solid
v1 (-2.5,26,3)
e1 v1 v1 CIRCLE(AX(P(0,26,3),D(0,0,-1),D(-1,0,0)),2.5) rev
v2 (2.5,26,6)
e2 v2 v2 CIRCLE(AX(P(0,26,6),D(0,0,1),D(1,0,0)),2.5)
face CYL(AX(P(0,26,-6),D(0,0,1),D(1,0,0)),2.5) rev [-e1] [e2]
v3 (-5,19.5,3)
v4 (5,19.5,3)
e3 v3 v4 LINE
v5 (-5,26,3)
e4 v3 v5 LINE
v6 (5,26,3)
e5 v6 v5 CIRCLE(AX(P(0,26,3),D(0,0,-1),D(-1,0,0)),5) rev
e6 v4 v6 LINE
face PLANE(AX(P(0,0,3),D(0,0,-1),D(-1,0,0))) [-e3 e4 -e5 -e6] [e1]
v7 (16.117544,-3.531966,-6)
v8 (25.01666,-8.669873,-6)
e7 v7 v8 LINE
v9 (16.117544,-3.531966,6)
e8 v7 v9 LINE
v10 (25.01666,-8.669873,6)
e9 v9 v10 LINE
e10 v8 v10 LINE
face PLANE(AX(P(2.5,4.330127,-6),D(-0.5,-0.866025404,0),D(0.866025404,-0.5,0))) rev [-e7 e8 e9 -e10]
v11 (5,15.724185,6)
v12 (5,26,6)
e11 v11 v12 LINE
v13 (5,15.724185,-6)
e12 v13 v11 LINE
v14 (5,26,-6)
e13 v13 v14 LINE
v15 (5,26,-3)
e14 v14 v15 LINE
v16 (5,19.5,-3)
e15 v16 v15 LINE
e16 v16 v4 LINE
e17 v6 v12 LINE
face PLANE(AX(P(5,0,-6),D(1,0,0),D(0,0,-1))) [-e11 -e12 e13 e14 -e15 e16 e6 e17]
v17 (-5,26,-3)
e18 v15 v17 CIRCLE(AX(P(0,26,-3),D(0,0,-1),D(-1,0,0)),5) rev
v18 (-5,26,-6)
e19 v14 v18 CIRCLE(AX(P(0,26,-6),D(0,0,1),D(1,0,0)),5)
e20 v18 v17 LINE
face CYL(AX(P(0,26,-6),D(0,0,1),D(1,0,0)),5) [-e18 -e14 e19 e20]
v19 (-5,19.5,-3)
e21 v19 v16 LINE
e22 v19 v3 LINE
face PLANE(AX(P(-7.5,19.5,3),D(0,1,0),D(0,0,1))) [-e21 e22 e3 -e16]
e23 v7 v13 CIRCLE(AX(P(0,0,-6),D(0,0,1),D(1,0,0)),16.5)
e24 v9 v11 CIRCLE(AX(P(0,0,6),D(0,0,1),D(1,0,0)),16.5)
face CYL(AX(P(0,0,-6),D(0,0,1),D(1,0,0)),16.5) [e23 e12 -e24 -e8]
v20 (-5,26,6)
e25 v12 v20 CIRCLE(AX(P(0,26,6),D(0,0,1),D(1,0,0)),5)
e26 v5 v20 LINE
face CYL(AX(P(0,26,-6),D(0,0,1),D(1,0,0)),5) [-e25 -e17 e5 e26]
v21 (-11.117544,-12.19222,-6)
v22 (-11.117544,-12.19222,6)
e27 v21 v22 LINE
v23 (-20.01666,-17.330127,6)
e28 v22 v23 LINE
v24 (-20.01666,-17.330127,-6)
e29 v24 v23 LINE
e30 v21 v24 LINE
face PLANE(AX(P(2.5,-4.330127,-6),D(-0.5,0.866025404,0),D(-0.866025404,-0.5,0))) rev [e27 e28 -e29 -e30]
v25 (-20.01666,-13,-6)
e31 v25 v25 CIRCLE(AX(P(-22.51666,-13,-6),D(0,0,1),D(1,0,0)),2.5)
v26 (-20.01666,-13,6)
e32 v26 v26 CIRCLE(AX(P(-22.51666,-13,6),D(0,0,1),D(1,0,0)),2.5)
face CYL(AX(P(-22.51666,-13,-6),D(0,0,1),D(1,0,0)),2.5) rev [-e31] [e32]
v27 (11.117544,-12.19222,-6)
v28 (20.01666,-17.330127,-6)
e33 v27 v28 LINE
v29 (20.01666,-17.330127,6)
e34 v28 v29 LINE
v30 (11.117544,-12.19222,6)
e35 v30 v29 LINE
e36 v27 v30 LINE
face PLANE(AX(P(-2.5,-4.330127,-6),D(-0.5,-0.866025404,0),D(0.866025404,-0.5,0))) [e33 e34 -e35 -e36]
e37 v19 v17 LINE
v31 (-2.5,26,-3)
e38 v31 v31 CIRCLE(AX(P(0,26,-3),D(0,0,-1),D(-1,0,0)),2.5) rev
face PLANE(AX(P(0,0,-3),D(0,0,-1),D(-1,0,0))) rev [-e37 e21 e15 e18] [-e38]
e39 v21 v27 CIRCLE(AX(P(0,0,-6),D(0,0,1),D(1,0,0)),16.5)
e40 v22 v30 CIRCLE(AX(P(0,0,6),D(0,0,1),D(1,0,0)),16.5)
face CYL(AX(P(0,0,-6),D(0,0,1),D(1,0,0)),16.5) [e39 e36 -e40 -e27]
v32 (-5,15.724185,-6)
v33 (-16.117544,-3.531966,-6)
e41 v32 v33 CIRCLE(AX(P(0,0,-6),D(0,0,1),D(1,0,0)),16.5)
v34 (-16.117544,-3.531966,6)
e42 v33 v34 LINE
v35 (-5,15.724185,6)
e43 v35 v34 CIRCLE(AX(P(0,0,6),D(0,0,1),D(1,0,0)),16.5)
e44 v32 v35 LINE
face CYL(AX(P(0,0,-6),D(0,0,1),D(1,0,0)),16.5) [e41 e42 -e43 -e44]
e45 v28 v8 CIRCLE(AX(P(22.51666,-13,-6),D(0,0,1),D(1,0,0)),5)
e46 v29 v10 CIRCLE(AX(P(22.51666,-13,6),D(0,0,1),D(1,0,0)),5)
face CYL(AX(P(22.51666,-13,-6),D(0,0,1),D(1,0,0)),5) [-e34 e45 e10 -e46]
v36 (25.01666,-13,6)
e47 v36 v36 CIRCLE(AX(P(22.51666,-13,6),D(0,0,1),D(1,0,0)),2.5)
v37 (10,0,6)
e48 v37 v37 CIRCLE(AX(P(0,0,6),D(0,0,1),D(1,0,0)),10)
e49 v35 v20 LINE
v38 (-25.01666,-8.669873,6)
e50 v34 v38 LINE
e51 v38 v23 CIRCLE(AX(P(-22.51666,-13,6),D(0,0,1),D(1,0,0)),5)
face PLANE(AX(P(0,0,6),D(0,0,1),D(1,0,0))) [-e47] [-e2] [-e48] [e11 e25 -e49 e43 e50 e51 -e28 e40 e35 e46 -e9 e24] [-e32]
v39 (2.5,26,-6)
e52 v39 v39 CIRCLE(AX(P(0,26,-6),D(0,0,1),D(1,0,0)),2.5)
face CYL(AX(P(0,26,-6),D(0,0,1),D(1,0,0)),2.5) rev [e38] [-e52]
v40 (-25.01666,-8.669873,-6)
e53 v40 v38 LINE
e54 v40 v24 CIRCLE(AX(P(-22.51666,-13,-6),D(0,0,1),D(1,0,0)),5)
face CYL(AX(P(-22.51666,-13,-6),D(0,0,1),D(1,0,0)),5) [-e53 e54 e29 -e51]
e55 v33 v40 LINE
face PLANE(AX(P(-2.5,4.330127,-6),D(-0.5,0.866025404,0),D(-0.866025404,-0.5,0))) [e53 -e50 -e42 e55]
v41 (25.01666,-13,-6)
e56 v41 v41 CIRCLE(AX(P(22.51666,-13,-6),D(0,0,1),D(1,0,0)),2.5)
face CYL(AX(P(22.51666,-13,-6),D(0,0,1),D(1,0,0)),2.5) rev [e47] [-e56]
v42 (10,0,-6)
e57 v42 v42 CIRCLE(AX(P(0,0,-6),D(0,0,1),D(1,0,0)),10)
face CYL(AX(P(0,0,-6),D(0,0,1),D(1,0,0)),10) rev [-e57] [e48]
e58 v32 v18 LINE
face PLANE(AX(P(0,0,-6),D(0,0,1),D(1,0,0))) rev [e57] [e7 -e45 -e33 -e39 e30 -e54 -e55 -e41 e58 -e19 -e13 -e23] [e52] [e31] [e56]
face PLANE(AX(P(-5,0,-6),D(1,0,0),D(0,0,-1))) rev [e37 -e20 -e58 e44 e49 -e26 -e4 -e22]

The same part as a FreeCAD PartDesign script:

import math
import FreeCAD as App
import Part
import Sketcher

V = App.Vector
Q = App.Units.Quantity

doc = App.newDocument("Part")
body = doc.addObject("PartDesign::Body", "Body")

# Sketch on XY plane
sketch1 = doc.addObject("Sketcher::SketchObject", "Sketch")
body.addObject(sketch1)
sketch1.AttachmentSupport = (doc.XY_Plane, [""])
sketch1.MapMode = "FlatFace"
sketch1.addGeometry([
    Part.ArcOfCircle(Part.Circle(V(0, 0, 0), V(0, 0, 1), 16.5), math.radians(-12.36), math.radians(0)),  # 0
    Part.ArcOfCircle(Part.Circle(V(0, 0, 0), V(0, 0, 1), 16.5), math.radians(0), math.radians(72)),  # 1
    Part.LineSegment(V(5, 15.7, 0), V(5, 26, 0)),  # 2
    Part.ArcOfCircle(Part.Circle(V(0, 26, 0), V(0, 0, 1), 5), math.radians(0), math.radians(180)),  # 3
    Part.LineSegment(V(-5, 26, 0), V(-5, 15.7, 0)),  # 4
    Part.ArcOfCircle(Part.Circle(V(0, 0, 0), V(0, 0, 1), 16.5), math.radians(108), math.radians(192)),  # 5
    Part.LineSegment(V(-16.1, -3.5, 0), V(-25, -8.7, 0)),  # 6
    Part.ArcOfCircle(Part.Circle(V(-22.5, -13, 0), V(0, 0, 1), 5), math.radians(120), math.radians(300)),  # 7
    Part.LineSegment(V(-20, -17.3, 0), V(-11.1, -12.2, 0)),  # 8
    Part.ArcOfCircle(Part.Circle(V(0, 0, 0), V(0, 0, 1), 16.5), math.radians(-132), math.radians(-48)),  # 9
    Part.LineSegment(V(11.1, -12.2, 0), V(20, -17.3, 0)),  # 10
    Part.ArcOfCircle(Part.Circle(V(22.5, -13, 0), V(0, 0, 1), 5), math.radians(-120), math.radians(60)),  # 11
    Part.LineSegment(V(25, -8.7, 0), V(16.1, -3.5, 0)),  # 12
    Part.ArcOfCircle(Part.Circle(V(0, 0, 0), V(0, 0, 1), 10), math.radians(0), math.radians(60)),  # 13
    Part.ArcOfCircle(Part.Circle(V(0, 0, 0), V(0, 0, 1), 10), math.radians(-60), math.radians(0)),  # 14
    Part.ArcOfCircle(Part.Circle(V(0, 0, 0), V(0, 0, 1), 10), math.radians(-120), math.radians(-60)),  # 15
    Part.ArcOfCircle(Part.Circle(V(0, 0, 0), V(0, 0, 1), 10), math.radians(180), math.radians(240)),  # 16
    Part.ArcOfCircle(Part.Circle(V(0, 0, 0), V(0, 0, 1), 10), math.radians(120), math.radians(180)),  # 17
    Part.ArcOfCircle(Part.Circle(V(0, 0, 0), V(0, 0, 1), 10), math.radians(60), math.radians(120)),  # 18
    Part.Circle(V(0, 26, 0), V(0, 0, 1), 2.5),  # 19
    Part.Circle(V(22.5, -13, 0), V(0, 0, 1), 2.5),  # 20
    Part.Circle(V(-22.5, -13, 0), V(0, 0, 1), 2.5),  # 21
], False)
sketch1.addConstraint([
    Sketcher.Constraint("Tangent", 0, 2, 1, 1),
    Sketcher.Constraint("Coincident", 1, 2, 2, 1),
    Sketcher.Constraint("Tangent", 2, 2, 3, 1),
    Sketcher.Constraint("Tangent", 3, 2, 4, 1),
    Sketcher.Constraint("Coincident", 4, 2, 5, 1),
    Sketcher.Constraint("Coincident", 5, 2, 6, 1),
    Sketcher.Constraint("Tangent", 6, 2, 7, 1),
    Sketcher.Constraint("Tangent", 7, 2, 8, 1),
    Sketcher.Constraint("Coincident", 8, 2, 9, 1),
    Sketcher.Constraint("Coincident", 9, 2, 10, 1),
    Sketcher.Constraint("Tangent", 10, 2, 11, 1),
    Sketcher.Constraint("Tangent", 11, 2, 12, 1),
    Sketcher.Constraint("Coincident", 12, 2, 0, 1),
    Sketcher.Constraint("Tangent", 13, 1, 14, 2),
    Sketcher.Constraint("Tangent", 14, 1, 15, 2),
    Sketcher.Constraint("Tangent", 15, 1, 16, 2),
    Sketcher.Constraint("Tangent", 16, 1, 17, 2),
    Sketcher.Constraint("Tangent", 17, 1, 18, 2),
    Sketcher.Constraint("Tangent", 18, 1, 13, 2),
    Sketcher.Constraint("Vertical", 2),
    Sketcher.Constraint("Vertical", 4),
    Sketcher.Constraint("Coincident", 0, 3, -1, 1),
    Sketcher.Constraint("Coincident", 5, 3, -1, 1),
    Sketcher.Constraint("Coincident", 9, 3, -1, 1),
    Sketcher.Constraint("Coincident", 13, 3, -1, 1),
    Sketcher.Constraint("Coincident", 15, 3, -1, 1),
    Sketcher.Constraint("Coincident", 19, 3, 3, 3),
    Sketcher.Constraint("Coincident", 20, 3, 11, 3),
    Sketcher.Constraint("Coincident", 21, 3, 7, 3),
    Sketcher.Constraint("Equal", 0, 1),
    Sketcher.Constraint("Equal", 1, 5),
    Sketcher.Constraint("Equal", 3, 7),
    Sketcher.Constraint("Equal", 5, 9),
    Sketcher.Constraint("Equal", 7, 11),
    Sketcher.Constraint("Equal", 15, 16),
    Sketcher.Constraint("Equal", 19, 20),
    Sketcher.Constraint("Equal", 20, 21),
    Sketcher.Constraint("Symmetric", 7, 3, 11, 3, -2),
    Sketcher.Constraint("PointOnObject", 3, 3, -2),
    Sketcher.Constraint("PointOnObject", 0, 2, -1),
    Sketcher.Constraint("PointOnObject", 13, 1, -1),
    Sketcher.Constraint("PointOnObject", 16, 1, -1),
    Sketcher.Constraint("Parallel", 6, 8),
    Sketcher.Constraint("Parallel", 10, 12),
    Sketcher.Constraint("Horizontal", 8, 2, 9, 2),
    Sketcher.Constraint("Horizontal", 14, 1, 15, 1),
    Sketcher.Constraint("Horizontal", 17, 1, 18, 1),
    Sketcher.Constraint("Vertical", 2, 2, 14, 1),
    Sketcher.Constraint("Vertical", 15, 1, 17, 1),
    Sketcher.Constraint("Equal", 6, 8),
    Sketcher.Constraint("Diameter", 19, 5.0),
    Sketcher.Constraint("Radius", 3, 5.0),
    Sketcher.Constraint("Radius", 13, 10.0),
    Sketcher.Constraint("Radius", 0, 16.5),
    Sketcher.Constraint("Angle", 6, Q("-150 deg")),
    Sketcher.Constraint("DistanceY", -1, 1, 3, 3, 26.0),
    Sketcher.Constraint("DistanceY", 7, 3, -1, 1, 13.0),
])
pad1 = doc.addObject("PartDesign::Pad", "Pad")
body.addObject(pad1)
pad1.Profile = sketch1
pad1.Type = "TwoLengths"
pad1.Length = 6
pad1.Length2 = 6

# Sketch on XY plane
sketch2 = doc.addObject("Sketcher::SketchObject", "Sketch001")
body.addObject(sketch2)
sketch2.AttachmentSupport = (doc.XY_Plane, [""])
sketch2.MapMode = "FlatFace"
sketch2.addGeometry([
    Part.LineSegment(V(-8, 32, 0), V(-8, 20, 0)),
    Part.LineSegment(V(-8, 20, 0), V(8, 20, 0)),
    Part.LineSegment(V(8, 20, 0), V(8, 32, 0)),
    Part.LineSegment(V(8, 32, 0), V(-8, 32, 0)),
], False)
sketch2.addConstraint([
    Sketcher.Constraint("Coincident", 0, 2, 1, 1),
    Sketcher.Constraint("Coincident", 1, 2, 2, 1),
    Sketcher.Constraint("Coincident", 2, 2, 3, 1),
    Sketcher.Constraint("Coincident", 3, 2, 0, 1),
    Sketcher.Constraint("Vertical", 0),
    Sketcher.Constraint("Horizontal", 1),
    Sketcher.Constraint("Vertical", 2),
    Sketcher.Constraint("Horizontal", 3),
    Sketcher.Constraint("DistanceX", 1, 1, 1, 2, 15.0),
    Sketcher.Constraint("DistanceY", 0, 2, 0, 1, 13.0),
    Sketcher.Constraint("DistanceX", 0, 2, -1, 1, 7.5),
    Sketcher.Constraint("DistanceY", -1, 1, 0, 2, 19.5),
])
pocket1 = doc.addObject("PartDesign::Pocket", "Pocket")
body.addObject(pocket1)
pocket1.Profile = sketch2
pocket1.Type = "TwoLengths"
pocket1.Length = 3
pocket1.Length2 = 3
pocket1.Reversed = True

doc.recompute()
